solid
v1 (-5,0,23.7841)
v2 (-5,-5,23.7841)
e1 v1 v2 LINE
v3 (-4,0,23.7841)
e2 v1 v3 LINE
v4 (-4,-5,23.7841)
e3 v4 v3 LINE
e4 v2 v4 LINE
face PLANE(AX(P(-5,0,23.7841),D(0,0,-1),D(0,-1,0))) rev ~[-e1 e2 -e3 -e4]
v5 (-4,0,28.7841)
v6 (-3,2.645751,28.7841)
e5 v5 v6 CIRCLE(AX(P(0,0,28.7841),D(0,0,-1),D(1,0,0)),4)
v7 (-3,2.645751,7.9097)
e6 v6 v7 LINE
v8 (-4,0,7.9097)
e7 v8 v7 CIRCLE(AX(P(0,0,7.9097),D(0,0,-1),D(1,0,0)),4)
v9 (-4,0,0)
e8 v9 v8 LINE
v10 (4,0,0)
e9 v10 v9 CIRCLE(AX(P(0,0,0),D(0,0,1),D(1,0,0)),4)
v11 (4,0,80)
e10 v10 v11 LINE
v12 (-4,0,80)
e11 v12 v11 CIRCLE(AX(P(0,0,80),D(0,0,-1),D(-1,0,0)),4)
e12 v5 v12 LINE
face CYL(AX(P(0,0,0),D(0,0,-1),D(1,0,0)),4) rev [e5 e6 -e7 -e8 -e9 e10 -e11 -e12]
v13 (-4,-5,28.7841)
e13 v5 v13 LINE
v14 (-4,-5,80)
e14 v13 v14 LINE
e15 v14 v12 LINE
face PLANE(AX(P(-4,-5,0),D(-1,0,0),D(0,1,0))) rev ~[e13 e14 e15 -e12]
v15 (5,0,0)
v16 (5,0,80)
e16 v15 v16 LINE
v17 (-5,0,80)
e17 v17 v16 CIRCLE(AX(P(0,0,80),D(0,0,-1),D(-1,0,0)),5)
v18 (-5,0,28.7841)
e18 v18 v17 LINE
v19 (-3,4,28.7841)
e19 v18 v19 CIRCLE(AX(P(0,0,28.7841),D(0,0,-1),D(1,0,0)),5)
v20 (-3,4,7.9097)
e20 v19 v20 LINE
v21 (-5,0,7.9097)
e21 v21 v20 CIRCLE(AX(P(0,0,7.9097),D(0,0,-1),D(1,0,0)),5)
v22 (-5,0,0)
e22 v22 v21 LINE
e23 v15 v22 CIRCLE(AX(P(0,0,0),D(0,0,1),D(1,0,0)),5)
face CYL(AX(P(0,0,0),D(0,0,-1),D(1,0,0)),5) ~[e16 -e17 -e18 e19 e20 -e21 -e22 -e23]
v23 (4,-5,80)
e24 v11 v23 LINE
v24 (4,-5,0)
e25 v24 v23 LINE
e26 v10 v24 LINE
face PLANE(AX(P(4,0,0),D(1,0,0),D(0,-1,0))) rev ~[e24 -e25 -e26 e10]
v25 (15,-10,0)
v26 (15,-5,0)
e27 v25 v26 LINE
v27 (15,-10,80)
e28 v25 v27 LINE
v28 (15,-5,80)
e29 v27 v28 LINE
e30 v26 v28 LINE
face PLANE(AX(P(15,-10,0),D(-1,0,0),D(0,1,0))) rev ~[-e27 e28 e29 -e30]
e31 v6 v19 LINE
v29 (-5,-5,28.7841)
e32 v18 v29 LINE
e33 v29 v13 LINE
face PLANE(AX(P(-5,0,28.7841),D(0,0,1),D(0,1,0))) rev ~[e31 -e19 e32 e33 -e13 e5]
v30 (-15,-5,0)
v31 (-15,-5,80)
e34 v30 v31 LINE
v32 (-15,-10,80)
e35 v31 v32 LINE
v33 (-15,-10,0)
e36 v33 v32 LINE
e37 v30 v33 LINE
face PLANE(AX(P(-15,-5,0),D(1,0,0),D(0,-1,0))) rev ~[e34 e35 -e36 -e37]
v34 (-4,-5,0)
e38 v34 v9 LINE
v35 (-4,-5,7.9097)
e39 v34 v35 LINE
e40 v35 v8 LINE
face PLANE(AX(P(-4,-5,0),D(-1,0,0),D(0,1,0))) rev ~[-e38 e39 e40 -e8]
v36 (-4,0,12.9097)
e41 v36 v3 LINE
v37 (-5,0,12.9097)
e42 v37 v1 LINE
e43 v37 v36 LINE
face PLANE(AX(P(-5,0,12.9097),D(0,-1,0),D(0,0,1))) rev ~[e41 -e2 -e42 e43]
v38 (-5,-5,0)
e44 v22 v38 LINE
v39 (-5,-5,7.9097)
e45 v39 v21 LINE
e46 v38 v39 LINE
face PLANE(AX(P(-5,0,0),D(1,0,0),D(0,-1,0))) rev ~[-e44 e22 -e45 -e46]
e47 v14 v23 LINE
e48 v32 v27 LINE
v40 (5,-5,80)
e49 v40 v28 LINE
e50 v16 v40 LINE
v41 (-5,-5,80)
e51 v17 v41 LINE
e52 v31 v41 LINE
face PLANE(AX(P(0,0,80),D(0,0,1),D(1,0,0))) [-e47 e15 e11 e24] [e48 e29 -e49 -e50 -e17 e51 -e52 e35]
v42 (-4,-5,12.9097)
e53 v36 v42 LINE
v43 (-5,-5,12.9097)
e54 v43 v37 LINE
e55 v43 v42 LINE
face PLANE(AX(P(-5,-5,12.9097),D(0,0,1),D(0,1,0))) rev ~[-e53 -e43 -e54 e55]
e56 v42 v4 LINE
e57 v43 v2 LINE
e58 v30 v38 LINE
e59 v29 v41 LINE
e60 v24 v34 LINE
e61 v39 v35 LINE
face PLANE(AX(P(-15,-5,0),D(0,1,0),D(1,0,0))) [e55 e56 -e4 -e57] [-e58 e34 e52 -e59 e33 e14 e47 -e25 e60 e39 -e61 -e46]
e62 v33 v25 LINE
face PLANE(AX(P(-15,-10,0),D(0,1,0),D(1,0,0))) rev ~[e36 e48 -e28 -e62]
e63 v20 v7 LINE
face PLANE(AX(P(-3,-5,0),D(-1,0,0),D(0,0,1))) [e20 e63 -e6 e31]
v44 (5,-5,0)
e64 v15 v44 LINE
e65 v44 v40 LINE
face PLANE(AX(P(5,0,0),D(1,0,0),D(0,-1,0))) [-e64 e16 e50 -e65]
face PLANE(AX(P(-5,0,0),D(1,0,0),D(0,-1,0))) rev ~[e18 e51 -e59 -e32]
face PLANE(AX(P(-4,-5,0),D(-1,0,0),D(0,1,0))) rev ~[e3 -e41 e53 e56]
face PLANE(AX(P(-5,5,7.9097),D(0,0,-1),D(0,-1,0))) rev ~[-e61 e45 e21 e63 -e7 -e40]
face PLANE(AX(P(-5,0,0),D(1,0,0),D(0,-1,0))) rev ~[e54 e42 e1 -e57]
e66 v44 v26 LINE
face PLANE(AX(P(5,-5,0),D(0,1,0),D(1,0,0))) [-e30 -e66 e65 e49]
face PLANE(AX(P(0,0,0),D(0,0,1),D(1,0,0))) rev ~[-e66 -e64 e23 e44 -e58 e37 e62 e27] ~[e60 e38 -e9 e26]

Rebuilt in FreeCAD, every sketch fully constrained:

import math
import FreeCAD as App
import Part
import Sketcher

V = App.Vector

doc = App.newDocument("Part")
body = doc.addObject("PartDesign::Body", "Body")

sketch1 = body.newObject("Sketcher::SketchObject", "Sketch")
sketch1.AttachmentSupport = (doc.getObject("XY_Plane"), [""])
sketch1.MapMode = "FlatFace"
sketch1.addGeometry([
    Part.ArcOfCircle(Part.Circle(V(0, 0, 0), V(0, 0, 1), 5), math.radians(0), math.radians(180)),
    Part.LineSegment(V(-5, 0, 0), V(-5, -5, 0)),
    Part.LineSegment(V(-5, -5, 0), V(-15, -5, 0)),
    Part.LineSegment(V(-15, -5, 0), V(-15, -10, 0)),
    Part.LineSegment(V(-15, -10, 0), V(15, -10, 0)),
    Part.LineSegment(V(15, -10, 0), V(15, -5, 0)),
    Part.LineSegment(V(15, -5, 0), V(5, -5, 0)),
    Part.LineSegment(V(5, -5, 0), V(5, 0, 0)),
], False)
sketch1.addConstraint([
    Sketcher.Constraint("Tangent", 0, 2, 1, 1),
    Sketcher.Constraint("Coincident", 1, 2, 2, 1),
    Sketcher.Constraint("Coincident", 2, 2, 3, 1),
    Sketcher.Constraint("Coincident", 3, 2, 4, 1),
    Sketcher.Constraint("Coincident", 4, 2, 5, 1),
    Sketcher.Constraint("Coincident", 5, 2, 6, 1),
    Sketcher.Constraint("Coincident", 6, 2, 7, 1),
    Sketcher.Constraint("Tangent", 7, 2, 0, 1),
    Sketcher.Constraint("Vertical", 1),
    Sketcher.Constraint("Horizontal", 2),
    Sketcher.Constraint("Vertical", 3),
    Sketcher.Constraint("Horizontal", 4),
    Sketcher.Constraint("Vertical", 5),
    Sketcher.Constraint("Horizontal", 6),
    Sketcher.Constraint("Vertical", 7),
    Sketcher.Constraint("Coincident", 0, 3, -1, 1),
    Sketcher.Constraint("Symmetric", 2, 2, 5, 2, -2),
    Sketcher.Constraint("Equal", 1, 3),
    Sketcher.Constraint("Radius", 0, 5.0),
    Sketcher.Constraint("DistanceX", 2, 2, 2, 1, 10.0),
    Sketcher.Constraint("DistanceY", 1, 2, 1, 1, 5.0),
])
pad1 = body.newObject("PartDesign::Pad", "Pad")
pad1.Profile = sketch1
pad1.Length = 80

sketch2 = body.newObject("Sketcher::SketchObject", "Sketch001")
sketch2.AttachmentSupport = (doc.getObject("YZ_Plane"), [""])
sketch2.MapMode = "FlatFace"
sketch2.AttachmentOffset = App.Placement(V(0, 0, -5), App.Rotation())
sketch2.addGeometry([
    Part.LineSegment(V(5, 29, 0), V(5, 8, 0)),
    Part.LineSegment(V(5, 8, 0), V(-5, 8, 0)),
    Part.LineSegment(V(-5, 8, 0), V(-5, 13, 0)),
    Part.LineSegment(V(-5, 13, 0), V(0, 13, 0)),
    Part.LineSegment(V(0, 13, 0), V(0, 24, 0)),
    Part.LineSegment(V(0, 24, 0), V(-5, 24, 0)),
    Part.LineSegment(V(-5, 24, 0), V(-5, 29, 0)),
    Part.LineSegment(V(-5, 29, 0), V(5, 29, 0)),
], False)
sketch2.addConstraint([
    Sketcher.Constraint("Coincident", 0, 2, 1, 1),
    Sketcher.Constraint("Coincident", 1, 2, 2, 1),
    Sketcher.Constraint("Coincident", 2, 2, 3, 1),
    Sketcher.Constraint("Coincident", 3, 2, 4, 1),
    Sketcher.Constraint("Coincident", 4, 2, 5, 1),
    Sketcher.Constraint("Coincident", 5, 2, 6, 1),
    Sketcher.Constraint("Coincident", 6, 2, 7, 1),
    Sketcher.Constraint("Coincident", 7, 2, 0, 1),
    Sketcher.Constraint("Vertical", 0),
    Sketcher.Constraint("Horizontal", 1),
    Sketcher.Constraint("Vertical", 2),
    Sketcher.Constraint("Horizontal", 3),
    Sketcher.Constraint("Vertical", 4),
    Sketcher.Constraint("Horizontal", 5),
    Sketcher.Constraint("Vertical", 6),
    Sketcher.Constraint("Horizontal", 7),
    Sketcher.Constraint("PointOnObject", 3, 2, -2),
    Sketcher.Constraint("Vertical", 2, 2, 5, 2),
    Sketcher.Constraint("Equal", 5, 2),
    Sketcher.Constraint("Equal", 2, 6),
    Sketcher.Constraint("DistanceX", 3, 1, 3, 2, 5.0),
    Sketcher.Constraint("DistanceX", -1, 1, 0, 2, 5.0),
    Sketcher.Constraint("DistanceY", 0, 2, 0, 1, 20.8744),
    Sketcher.Constraint("DistanceY", -1, 1, 4, 2, 23.784),
])
pocket1 = body.newObject("PartDesign::Pocket", "Pocket")
pocket1.Profile = sketch2
pocket1.Length = 2
pocket1.Reversed = True

sketch3 = body.newObject("Sketcher::SketchObject", "Sketch002")
sketch3.AttachmentSupport = (doc.getObject("XY_Plane"), [""])
sketch3.MapMode = "FlatFace"
sketch3.addGeometry([
    Part.ArcOfCircle(Part.Circle(V(0, 0, 0), V(0, 0, 1), 4), math.radians(0), math.radians(180)),
    Part.LineSegment(V(-4, 0, 0), V(-4, -5, 0)),
    Part.LineSegment(V(-4, -5, 0), V(4, -5, 0)),
    Part.LineSegment(V(4, -5, 0), V(4, 0, 0)),
], False)
sketch3.addConstraint([
    Sketcher.Constraint("Tangent", 0, 2, 1, 1),
    Sketcher.Constraint("Coincident", 1, 2, 2, 1),
    Sketcher.Constraint("Coincident", 2, 2, 3, 1),
    Sketcher.Constraint("Tangent", 3, 2, 0, 1),
    Sketcher.Constraint("Vertical", 1),
    Sketcher.Constraint("Horizontal", 2),
    Sketcher.Constraint("Vertical", 3),
    Sketcher.Constraint("Coincident", 0, 3, -1, 1),
    Sketcher.Constraint("DistanceY", 1, 2, 1, 1, 5.0),
    Sketcher.Constraint("Radius", 0, 4.0),
])
pocket2 = body.newObject("PartDesign::Pocket", "Pocket001")
pocket2.Profile = sketch3
pocket2.Length = 80
pocket2.Reversed = True

doc.recompute()
